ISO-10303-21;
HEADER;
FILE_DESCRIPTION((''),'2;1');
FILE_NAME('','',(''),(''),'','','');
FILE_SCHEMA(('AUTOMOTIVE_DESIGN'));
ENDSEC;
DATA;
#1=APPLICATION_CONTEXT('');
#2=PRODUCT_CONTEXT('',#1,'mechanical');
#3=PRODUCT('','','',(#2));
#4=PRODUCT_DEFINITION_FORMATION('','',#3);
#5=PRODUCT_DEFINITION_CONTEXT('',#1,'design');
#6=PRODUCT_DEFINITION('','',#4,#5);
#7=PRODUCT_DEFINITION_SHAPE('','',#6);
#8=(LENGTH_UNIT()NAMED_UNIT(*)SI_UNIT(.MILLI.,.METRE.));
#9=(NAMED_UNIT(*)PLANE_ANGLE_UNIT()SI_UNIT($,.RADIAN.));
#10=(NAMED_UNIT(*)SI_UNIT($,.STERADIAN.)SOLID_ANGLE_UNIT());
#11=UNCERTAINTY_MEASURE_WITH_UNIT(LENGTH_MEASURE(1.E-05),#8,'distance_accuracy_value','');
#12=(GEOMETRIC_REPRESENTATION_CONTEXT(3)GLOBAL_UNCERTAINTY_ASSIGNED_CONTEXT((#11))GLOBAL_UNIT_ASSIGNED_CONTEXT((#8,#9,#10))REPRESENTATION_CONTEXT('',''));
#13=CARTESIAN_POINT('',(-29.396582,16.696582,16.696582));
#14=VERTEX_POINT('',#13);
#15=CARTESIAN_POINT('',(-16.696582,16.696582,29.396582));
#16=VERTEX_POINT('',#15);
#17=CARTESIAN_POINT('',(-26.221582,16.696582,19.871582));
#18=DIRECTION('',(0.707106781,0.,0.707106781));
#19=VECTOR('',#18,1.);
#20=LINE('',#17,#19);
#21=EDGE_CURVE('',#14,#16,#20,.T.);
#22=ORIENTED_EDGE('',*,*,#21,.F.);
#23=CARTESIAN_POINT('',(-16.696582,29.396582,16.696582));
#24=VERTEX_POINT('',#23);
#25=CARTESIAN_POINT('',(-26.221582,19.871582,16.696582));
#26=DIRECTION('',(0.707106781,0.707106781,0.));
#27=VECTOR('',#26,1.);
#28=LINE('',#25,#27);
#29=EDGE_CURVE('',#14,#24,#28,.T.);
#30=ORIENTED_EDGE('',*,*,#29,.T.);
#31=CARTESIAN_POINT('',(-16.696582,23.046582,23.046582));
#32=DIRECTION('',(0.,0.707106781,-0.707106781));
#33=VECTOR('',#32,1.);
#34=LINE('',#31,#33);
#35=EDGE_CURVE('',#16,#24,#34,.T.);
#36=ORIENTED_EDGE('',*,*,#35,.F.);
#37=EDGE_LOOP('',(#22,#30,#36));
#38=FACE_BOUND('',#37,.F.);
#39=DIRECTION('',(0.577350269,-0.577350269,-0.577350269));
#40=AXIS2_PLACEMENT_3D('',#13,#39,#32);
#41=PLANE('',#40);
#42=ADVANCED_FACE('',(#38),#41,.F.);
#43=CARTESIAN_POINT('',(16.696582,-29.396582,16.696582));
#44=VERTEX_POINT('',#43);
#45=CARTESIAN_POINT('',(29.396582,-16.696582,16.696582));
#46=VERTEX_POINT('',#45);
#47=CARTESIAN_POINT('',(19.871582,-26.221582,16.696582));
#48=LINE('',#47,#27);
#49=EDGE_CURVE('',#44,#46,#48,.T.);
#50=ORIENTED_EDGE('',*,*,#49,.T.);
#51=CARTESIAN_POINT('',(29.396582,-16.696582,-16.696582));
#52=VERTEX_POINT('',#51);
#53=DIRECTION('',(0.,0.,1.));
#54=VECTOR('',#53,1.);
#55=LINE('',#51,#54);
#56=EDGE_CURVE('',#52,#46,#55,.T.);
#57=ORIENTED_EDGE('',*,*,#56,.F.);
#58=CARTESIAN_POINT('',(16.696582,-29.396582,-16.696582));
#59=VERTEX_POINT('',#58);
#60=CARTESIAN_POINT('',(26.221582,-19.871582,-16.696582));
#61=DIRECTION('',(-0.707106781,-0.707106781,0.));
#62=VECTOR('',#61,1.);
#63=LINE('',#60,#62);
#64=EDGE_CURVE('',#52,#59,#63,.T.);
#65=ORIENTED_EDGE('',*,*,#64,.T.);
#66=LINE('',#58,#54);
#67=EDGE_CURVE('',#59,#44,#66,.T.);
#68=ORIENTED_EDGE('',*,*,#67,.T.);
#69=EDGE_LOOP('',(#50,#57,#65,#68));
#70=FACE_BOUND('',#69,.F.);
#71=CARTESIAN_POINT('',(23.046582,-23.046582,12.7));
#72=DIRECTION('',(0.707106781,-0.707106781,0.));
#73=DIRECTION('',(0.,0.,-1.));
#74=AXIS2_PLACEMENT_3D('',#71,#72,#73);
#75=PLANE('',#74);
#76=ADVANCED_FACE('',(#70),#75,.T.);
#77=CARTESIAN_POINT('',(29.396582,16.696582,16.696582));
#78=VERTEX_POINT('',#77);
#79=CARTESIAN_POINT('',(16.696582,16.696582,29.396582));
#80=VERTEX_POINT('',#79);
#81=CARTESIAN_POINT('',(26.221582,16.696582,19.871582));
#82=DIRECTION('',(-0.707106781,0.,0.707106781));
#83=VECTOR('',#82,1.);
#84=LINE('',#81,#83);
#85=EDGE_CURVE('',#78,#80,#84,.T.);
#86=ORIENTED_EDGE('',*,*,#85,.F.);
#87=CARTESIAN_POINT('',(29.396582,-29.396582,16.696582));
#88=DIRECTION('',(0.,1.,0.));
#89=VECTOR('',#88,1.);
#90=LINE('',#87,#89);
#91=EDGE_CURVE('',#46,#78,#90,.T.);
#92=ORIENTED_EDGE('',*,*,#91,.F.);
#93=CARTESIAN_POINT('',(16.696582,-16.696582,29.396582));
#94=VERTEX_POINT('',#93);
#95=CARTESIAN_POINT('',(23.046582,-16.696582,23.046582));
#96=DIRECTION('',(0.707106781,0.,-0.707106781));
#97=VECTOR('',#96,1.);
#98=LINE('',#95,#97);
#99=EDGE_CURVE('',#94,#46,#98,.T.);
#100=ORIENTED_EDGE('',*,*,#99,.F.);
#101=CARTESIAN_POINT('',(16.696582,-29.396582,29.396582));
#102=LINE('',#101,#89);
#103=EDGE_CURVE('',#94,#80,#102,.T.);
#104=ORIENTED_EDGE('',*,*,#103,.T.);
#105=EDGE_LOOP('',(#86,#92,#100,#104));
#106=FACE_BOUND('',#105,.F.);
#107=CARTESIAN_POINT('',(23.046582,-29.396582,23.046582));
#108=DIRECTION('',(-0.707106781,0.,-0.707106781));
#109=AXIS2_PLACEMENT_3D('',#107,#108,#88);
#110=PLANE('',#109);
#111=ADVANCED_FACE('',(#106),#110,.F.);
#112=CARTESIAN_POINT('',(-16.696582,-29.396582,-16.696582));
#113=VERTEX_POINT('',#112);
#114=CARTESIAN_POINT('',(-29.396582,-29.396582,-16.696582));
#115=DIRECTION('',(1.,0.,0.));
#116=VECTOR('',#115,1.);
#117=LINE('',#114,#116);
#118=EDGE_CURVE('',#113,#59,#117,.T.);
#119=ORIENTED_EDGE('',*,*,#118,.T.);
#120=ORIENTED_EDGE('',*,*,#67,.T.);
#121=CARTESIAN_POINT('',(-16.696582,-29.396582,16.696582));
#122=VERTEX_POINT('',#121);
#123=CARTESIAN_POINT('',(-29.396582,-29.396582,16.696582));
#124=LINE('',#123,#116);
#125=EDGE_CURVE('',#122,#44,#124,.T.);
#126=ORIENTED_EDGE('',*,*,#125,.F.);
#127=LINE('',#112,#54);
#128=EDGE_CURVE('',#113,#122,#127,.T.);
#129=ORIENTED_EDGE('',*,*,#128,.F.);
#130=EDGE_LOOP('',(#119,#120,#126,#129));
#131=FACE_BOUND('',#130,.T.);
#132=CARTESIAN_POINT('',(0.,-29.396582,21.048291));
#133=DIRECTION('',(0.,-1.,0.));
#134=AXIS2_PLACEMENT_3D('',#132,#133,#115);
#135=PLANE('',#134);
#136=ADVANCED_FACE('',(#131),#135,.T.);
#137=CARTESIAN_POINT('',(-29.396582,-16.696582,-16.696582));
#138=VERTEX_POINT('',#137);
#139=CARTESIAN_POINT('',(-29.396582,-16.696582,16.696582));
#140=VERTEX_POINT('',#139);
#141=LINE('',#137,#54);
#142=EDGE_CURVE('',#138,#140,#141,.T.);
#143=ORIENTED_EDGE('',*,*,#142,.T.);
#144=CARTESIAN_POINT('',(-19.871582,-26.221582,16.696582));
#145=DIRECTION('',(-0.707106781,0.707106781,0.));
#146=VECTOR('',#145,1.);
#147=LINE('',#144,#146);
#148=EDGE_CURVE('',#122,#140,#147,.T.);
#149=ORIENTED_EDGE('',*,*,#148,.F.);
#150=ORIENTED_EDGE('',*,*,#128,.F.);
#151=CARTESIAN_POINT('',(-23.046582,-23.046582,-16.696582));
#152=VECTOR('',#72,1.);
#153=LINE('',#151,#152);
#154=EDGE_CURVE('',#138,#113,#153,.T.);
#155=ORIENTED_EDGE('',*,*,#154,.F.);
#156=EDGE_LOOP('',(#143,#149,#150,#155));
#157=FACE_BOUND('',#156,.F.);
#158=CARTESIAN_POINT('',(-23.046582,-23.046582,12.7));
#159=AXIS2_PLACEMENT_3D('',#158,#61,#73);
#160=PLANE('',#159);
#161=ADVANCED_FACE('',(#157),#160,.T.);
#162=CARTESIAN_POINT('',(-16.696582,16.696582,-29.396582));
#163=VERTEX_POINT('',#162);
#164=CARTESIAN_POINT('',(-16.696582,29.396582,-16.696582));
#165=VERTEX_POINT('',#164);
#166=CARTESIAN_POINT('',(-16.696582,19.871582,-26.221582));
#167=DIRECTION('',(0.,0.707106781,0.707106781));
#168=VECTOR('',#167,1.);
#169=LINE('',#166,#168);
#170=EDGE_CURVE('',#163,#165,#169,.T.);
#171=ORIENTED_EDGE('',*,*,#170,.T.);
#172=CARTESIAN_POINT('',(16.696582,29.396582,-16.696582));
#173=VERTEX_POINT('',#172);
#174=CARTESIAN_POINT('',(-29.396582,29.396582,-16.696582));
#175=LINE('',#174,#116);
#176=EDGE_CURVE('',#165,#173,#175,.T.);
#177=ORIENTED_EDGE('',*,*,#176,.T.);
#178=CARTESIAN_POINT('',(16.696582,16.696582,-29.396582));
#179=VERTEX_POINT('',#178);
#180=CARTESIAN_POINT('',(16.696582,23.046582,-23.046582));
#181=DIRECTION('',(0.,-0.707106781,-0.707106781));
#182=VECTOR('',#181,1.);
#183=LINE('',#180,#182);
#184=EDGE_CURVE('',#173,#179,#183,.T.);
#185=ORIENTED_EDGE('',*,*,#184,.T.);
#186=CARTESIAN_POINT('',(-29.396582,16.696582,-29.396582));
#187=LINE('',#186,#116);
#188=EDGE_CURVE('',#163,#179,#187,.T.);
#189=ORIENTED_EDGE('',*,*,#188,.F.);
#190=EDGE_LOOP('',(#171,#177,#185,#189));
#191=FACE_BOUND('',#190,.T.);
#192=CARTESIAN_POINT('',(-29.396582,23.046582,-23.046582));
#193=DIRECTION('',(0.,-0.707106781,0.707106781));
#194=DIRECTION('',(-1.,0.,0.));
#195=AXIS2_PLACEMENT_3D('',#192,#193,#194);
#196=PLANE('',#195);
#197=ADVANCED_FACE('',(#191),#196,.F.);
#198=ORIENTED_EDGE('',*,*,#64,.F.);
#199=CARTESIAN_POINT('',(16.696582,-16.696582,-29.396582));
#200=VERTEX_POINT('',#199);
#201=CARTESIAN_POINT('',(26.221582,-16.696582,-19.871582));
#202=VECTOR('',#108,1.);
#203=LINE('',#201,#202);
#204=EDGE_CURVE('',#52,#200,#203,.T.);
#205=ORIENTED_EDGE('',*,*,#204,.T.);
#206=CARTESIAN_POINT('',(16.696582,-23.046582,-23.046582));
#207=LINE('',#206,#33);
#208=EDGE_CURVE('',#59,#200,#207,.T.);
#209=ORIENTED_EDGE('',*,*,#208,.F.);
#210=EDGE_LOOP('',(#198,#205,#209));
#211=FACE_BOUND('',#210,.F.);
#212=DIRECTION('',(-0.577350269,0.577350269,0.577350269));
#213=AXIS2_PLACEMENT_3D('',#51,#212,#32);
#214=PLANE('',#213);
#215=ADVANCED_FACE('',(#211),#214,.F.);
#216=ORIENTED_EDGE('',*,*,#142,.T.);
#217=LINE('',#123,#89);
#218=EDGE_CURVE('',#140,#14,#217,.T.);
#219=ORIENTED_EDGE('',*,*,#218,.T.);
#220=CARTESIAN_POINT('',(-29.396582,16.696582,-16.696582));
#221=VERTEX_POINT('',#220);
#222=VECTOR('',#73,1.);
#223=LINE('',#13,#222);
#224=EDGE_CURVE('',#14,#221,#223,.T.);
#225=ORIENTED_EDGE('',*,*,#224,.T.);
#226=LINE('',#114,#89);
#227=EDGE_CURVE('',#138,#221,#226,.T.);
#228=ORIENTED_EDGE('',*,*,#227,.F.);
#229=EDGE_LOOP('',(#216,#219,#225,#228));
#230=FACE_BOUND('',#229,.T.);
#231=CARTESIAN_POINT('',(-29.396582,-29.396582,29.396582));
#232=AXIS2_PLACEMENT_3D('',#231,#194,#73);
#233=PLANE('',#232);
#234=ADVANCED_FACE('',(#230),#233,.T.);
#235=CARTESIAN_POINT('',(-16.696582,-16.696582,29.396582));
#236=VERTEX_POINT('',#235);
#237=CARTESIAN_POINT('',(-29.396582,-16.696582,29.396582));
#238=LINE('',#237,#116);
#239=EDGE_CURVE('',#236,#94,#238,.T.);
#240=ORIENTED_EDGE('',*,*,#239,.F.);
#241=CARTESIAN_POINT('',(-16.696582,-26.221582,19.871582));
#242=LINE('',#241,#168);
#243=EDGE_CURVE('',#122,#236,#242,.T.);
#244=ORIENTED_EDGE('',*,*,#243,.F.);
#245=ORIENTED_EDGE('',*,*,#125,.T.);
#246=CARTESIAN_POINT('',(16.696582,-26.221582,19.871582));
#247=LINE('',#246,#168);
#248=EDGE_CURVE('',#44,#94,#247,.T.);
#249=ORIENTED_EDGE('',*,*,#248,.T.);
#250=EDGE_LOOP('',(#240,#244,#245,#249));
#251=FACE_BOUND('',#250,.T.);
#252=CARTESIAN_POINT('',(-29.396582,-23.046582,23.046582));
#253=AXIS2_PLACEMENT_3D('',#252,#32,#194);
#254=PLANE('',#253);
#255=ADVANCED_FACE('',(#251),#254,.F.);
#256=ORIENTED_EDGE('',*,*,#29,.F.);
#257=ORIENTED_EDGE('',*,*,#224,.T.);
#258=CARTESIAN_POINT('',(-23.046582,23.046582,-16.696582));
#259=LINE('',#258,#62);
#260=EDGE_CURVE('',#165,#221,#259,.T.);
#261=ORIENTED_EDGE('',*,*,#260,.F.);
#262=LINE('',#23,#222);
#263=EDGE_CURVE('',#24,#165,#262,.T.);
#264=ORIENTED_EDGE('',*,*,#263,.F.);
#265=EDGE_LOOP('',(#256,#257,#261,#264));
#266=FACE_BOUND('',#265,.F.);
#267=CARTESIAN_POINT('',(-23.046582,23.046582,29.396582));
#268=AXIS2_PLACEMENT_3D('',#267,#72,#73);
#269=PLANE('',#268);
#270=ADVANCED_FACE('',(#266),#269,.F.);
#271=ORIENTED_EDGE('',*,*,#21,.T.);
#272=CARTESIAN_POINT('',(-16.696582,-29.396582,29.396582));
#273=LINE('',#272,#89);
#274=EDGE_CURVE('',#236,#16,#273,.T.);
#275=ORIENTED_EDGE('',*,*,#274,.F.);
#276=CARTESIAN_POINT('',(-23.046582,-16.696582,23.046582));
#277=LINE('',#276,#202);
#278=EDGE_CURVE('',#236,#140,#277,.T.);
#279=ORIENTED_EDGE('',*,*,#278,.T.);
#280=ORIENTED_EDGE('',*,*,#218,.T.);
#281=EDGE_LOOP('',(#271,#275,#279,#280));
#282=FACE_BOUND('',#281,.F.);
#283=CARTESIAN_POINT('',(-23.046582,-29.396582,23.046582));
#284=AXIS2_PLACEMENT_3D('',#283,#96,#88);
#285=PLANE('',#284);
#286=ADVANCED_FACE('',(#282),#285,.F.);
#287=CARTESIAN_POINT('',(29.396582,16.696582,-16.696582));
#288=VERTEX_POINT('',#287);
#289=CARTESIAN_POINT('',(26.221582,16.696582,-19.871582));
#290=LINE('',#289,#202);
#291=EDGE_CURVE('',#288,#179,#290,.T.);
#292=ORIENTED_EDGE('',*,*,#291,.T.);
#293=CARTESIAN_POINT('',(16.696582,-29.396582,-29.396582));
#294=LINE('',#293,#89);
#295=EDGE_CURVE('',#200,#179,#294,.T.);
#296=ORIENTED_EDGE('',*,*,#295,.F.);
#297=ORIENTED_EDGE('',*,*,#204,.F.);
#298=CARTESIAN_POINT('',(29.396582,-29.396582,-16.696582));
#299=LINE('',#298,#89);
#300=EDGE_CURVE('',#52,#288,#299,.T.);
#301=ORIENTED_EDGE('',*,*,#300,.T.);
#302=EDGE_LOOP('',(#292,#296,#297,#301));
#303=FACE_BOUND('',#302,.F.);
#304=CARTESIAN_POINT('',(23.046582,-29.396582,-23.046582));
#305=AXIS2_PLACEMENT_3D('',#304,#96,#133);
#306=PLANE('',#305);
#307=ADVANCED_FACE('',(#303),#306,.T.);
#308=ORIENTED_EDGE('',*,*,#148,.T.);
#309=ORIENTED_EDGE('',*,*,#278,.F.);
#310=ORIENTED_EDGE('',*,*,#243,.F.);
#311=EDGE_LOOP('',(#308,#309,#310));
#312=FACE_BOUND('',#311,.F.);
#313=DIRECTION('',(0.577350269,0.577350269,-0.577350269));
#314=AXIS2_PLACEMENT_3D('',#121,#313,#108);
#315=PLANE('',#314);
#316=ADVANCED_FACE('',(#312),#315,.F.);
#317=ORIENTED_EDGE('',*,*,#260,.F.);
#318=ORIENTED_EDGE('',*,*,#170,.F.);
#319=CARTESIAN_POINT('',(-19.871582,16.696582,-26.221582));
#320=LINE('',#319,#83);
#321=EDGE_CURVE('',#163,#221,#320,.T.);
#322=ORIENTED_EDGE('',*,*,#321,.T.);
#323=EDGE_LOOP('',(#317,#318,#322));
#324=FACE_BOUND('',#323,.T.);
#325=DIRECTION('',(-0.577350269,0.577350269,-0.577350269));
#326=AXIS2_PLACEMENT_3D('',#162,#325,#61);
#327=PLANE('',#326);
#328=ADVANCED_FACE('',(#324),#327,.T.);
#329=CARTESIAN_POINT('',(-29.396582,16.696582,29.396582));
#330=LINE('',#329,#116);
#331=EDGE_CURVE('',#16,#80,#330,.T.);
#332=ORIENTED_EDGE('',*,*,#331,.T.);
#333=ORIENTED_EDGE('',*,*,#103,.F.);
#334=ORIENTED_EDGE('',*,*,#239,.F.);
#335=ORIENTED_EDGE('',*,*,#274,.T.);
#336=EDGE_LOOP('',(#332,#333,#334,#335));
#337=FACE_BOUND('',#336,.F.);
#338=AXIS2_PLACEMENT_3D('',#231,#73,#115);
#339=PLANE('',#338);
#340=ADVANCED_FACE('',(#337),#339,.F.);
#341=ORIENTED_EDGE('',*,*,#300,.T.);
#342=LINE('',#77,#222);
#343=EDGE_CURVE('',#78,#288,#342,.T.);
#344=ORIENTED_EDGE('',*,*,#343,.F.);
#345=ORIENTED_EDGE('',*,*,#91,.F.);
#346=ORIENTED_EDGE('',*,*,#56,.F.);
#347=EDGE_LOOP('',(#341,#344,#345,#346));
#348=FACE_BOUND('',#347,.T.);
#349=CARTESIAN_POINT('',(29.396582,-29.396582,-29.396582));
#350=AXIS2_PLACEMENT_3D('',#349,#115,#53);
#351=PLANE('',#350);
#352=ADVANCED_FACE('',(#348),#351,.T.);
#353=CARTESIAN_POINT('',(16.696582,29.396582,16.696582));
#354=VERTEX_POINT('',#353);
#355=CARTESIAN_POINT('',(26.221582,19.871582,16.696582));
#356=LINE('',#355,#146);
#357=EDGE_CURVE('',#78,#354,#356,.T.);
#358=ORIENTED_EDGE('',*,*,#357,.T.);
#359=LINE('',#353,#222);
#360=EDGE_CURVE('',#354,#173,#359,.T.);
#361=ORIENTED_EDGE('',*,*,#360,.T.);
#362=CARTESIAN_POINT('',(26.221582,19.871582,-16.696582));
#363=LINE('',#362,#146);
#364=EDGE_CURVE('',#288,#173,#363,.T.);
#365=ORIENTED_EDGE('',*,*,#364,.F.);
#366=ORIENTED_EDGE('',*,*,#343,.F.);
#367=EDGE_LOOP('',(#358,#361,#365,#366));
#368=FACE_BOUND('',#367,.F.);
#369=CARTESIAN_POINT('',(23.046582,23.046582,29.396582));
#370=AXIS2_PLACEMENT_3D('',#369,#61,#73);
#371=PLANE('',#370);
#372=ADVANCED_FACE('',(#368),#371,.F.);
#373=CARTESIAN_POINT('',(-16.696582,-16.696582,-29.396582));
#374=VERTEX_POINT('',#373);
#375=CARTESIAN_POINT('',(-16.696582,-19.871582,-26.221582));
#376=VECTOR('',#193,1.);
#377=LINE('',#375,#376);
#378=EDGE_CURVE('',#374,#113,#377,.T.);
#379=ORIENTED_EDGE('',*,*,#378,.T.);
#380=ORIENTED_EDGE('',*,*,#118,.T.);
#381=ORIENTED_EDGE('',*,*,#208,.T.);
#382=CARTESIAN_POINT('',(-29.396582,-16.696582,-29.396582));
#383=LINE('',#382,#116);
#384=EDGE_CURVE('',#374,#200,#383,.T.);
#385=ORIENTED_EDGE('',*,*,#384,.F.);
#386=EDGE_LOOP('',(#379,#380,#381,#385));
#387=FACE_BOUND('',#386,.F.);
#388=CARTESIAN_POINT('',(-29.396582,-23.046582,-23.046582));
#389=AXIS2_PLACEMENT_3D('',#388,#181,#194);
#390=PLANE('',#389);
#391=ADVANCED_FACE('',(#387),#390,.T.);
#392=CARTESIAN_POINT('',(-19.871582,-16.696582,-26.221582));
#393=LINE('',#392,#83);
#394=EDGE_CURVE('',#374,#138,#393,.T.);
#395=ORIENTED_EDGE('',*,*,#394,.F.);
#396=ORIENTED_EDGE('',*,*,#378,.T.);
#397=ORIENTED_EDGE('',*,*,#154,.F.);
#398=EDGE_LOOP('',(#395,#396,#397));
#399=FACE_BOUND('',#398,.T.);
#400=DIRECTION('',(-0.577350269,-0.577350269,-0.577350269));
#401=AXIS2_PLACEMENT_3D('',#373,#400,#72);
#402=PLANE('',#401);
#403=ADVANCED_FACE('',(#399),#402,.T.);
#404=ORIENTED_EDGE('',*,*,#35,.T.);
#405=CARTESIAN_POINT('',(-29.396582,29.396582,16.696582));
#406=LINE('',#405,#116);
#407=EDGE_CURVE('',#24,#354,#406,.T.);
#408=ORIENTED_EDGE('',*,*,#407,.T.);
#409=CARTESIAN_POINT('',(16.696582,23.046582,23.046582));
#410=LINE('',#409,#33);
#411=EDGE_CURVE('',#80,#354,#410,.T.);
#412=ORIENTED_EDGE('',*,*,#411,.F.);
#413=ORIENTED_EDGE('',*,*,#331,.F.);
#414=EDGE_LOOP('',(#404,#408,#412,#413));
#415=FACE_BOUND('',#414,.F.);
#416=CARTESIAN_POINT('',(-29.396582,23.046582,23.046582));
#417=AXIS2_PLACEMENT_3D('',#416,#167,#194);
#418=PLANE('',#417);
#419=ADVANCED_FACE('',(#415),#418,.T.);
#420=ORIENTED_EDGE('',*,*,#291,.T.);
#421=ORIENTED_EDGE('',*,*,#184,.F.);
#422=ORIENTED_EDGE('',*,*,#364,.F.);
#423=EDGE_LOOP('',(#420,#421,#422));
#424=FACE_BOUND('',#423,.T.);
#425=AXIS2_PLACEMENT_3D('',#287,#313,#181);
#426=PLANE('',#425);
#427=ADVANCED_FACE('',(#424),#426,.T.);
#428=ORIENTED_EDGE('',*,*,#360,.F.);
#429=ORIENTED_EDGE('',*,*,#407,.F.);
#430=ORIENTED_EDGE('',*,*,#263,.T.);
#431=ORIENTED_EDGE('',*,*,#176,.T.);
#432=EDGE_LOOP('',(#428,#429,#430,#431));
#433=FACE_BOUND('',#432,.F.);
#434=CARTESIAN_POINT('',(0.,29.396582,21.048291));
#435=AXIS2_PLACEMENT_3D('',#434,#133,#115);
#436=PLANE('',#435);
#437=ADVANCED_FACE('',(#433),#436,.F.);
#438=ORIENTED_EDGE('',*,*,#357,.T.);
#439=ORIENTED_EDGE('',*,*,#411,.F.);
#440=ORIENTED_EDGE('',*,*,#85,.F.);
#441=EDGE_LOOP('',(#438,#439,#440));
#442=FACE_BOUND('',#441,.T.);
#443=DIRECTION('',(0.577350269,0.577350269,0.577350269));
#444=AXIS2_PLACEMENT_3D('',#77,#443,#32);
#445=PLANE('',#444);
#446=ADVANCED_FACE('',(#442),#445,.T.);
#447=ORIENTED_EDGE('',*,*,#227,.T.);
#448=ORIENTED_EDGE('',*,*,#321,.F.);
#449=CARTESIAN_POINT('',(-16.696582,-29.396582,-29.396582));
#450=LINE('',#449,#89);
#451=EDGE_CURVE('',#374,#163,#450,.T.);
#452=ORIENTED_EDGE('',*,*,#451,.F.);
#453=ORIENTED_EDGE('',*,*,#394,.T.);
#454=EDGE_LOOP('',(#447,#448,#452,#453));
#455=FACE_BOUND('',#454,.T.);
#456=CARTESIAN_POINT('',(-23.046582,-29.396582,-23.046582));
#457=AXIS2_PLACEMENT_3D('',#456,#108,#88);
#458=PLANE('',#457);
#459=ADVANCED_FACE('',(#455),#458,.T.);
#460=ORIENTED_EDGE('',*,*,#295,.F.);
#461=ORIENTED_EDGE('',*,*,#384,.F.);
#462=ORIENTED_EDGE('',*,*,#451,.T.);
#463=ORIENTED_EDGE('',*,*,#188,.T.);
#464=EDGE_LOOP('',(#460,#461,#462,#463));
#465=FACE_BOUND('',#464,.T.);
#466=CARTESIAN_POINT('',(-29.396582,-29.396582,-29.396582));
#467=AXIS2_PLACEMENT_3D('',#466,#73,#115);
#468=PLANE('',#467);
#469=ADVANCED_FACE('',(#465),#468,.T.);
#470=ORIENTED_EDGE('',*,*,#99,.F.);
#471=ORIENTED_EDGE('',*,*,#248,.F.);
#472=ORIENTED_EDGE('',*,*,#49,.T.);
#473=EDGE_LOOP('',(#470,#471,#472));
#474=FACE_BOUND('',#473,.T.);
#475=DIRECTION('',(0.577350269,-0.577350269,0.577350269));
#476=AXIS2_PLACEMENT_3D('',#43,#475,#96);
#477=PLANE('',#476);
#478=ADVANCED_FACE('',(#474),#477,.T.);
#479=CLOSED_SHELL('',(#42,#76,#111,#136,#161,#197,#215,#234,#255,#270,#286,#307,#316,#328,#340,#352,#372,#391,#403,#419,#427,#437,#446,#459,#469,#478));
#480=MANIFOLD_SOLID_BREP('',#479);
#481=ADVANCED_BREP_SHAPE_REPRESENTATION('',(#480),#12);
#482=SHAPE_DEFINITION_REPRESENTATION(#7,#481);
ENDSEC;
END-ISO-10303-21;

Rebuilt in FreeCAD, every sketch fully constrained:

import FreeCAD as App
import Part
import Sketcher
Q = App.Units.Quantity


def edges_at(feature, points):
    """Names of the edges that pass closest to the given points."""
    edges = feature.Shape.Edges
    near = lambda p: min(range(len(edges)), key=lambda i: edges[i].distToShape(Part.Vertex(*p))[0])
    return sorted({f"Edge{near(p) + 1}" for p in points})


def add_polygon(sketch, points):
    """Adds a closed chain of lines whose ends are joined by coincident constraints."""
    first, n = sketch.GeometryCount, len(points)
    for a, b in zip(points, points[1:] + points[:1]):
        sketch.addGeometry(Part.LineSegment(App.Vector(*a, 0), App.Vector(*b, 0)), False)
    for i in range(n):
        sketch.addConstraint(Sketcher.Constraint("Coincident", first + i, 2, first + (i + 1) % n, 1))

doc = App.newDocument("Part")
body = doc.addObject("PartDesign::Body", "Body")

# Sketch on XY plane
sketch1 = doc.addObject("Sketcher::SketchObject", "Sketch")
body.addObject(sketch1)
sketch1.AttachmentSupport = (doc.XY_Plane, [""])
sketch1.MapMode = "FlatFace"
add_polygon(sketch1, [(-29, 29), (-29, -29), (29, -29), (29, 29)])  # lines 0-3
sketch1.addConstraint([
    Sketcher.Constraint("Vertical", 0),
    Sketcher.Constraint("Horizontal", 1),
    Sketcher.Constraint("Vertical", 2),
    Sketcher.Constraint("Horizontal", 3),
    Sketcher.Constraint("Symmetric", 0, 2, 2, 2, -1, 1),
    Sketcher.Constraint("Equal", 3, 0),
    Sketcher.Constraint("DistanceX", 1, 1, 1, 2, Q("58.793165 mm")),
])
pad1 = doc.addObject("PartDesign::Pad", "Pad")
body.addObject(pad1)
pad1.Profile = sketch1
pad1.Length = Q("1 in")
pad1.Midplane = True

# Sketch on XZ plane
sketch2 = doc.addObject("Sketcher::SketchObject", "Sketch001")
body.addObject(sketch2)
sketch2.AttachmentSupport = (doc.XZ_Plane, [""])
sketch2.MapMode = "FlatFace"
sketch2.AttachmentOffset = App.Placement(App.Vector(0, 0, 29.396582), App.Rotation())
add_polygon(sketch2, [(-29, 29), (-29, -29), (29, -29), (29, 29)])  # lines 0-3
sketch2.addConstraint([
    Sketcher.Constraint("Vertical", 0),
    Sketcher.Constraint("Horizontal", 1),
    Sketcher.Constraint("Vertical", 2),
    Sketcher.Constraint("Horizontal", 3),
    Sketcher.Constraint("Symmetric", 0, 2, 2, 2, -1, 1),
    Sketcher.Constraint("Equal", 3, 0),
    Sketcher.Constraint("DistanceX", 1, 1, 1, 2, Q("58.793165 mm")),
])
pad2 = doc.addObject("PartDesign::Pad", "Pad001")
body.addObject(pad2)
pad2.Profile = sketch2
pad2.Type = "UpToLast"
pad2.Reversed = True
doc.recompute()

chamfer = doc.addObject("PartDesign::Chamfer", "Chamfer")
body.addObject(chamfer)
chamfer.Base = (pad2, edges_at(pad2, [
    (0, 29.397, 29.397),
    (-29.397, 0, 29.397),
    (-29.397, 29.397, 0),
    (29.397, 0, 29.397),
    (0, -29.397, 29.397),
    (0, 29.397, -29.397),
    (29.397, 29.397, 0),
    (-29.397, -29.397, 0),
    (-29.397, 0, -29.397),
    (0, -29.397, -29.397),
    (29.397, -29.397, 0),
    (29.397, 0, -29.397),
]))
chamfer.Size = Q("0.5 in")

doc.recompute()
